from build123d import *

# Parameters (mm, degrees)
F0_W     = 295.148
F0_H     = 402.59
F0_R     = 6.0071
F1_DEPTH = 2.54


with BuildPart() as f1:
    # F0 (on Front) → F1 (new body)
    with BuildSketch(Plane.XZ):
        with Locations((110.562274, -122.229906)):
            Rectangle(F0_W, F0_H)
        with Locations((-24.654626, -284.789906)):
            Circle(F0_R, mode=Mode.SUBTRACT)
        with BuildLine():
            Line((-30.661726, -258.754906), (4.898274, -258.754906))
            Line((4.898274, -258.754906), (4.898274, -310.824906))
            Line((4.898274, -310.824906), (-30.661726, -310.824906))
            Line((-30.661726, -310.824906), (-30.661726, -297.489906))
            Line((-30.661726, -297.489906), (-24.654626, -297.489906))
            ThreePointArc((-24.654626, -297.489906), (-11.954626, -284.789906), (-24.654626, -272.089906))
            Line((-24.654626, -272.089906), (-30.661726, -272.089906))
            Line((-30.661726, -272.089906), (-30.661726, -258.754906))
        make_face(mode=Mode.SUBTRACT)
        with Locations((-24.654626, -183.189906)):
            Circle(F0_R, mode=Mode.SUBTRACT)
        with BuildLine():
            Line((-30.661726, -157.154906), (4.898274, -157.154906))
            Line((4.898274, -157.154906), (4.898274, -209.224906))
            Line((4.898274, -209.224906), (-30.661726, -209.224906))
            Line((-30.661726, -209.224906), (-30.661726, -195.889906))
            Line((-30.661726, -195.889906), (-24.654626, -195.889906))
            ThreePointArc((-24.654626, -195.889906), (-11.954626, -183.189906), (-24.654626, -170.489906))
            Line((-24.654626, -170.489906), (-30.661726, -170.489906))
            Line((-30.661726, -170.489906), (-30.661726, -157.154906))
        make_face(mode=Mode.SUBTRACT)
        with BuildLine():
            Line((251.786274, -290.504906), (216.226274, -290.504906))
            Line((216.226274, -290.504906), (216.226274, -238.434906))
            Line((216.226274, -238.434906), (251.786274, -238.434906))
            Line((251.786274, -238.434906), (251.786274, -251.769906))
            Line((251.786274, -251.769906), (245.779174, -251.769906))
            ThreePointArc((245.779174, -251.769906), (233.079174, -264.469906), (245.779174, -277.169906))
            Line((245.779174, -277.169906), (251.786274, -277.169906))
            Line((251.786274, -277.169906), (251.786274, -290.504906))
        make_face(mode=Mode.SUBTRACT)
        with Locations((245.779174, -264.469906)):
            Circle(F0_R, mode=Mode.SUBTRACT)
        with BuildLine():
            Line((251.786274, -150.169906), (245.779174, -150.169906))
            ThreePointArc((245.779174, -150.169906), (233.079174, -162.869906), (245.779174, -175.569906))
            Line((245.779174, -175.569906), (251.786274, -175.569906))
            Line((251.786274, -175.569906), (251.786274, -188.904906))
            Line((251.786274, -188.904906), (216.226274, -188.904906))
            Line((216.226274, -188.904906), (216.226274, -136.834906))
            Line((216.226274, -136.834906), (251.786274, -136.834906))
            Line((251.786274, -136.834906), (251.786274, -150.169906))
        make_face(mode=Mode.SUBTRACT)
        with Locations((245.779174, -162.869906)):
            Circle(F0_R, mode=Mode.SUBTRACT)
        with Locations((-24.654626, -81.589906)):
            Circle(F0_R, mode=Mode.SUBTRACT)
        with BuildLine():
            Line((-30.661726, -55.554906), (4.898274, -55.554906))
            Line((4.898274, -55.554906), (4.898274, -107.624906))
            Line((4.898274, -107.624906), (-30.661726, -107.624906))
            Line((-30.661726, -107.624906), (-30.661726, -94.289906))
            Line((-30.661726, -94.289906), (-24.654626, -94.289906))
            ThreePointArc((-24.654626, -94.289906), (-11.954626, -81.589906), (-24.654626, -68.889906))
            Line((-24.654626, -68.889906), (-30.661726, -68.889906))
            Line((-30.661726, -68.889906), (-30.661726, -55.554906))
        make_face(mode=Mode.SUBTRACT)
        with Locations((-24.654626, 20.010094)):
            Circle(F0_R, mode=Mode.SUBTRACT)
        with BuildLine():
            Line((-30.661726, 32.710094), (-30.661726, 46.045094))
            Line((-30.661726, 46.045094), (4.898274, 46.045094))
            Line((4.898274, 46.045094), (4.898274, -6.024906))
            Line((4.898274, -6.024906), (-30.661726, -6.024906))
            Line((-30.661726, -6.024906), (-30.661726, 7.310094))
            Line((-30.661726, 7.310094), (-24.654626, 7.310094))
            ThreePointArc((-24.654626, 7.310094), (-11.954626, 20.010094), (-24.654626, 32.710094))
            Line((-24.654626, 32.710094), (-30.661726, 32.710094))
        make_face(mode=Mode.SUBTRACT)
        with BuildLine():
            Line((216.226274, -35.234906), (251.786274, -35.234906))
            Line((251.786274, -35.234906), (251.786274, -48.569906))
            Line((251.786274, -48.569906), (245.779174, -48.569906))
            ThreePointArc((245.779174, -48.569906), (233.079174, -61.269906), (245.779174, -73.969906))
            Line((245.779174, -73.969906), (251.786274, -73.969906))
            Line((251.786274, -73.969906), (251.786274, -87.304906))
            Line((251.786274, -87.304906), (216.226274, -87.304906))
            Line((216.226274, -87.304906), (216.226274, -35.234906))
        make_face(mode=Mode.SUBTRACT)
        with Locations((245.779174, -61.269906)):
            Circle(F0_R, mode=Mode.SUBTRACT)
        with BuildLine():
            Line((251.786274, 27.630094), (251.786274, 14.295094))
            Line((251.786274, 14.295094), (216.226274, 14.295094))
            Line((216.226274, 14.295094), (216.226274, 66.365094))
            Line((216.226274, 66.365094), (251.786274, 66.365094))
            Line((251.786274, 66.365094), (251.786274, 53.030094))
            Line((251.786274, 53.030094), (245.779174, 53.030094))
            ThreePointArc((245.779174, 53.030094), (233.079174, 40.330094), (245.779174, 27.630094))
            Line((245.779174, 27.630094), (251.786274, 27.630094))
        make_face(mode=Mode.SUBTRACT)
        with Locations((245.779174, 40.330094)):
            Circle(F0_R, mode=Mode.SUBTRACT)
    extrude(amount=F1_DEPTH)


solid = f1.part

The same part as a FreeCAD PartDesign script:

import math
import FreeCAD as App
import Part
import Sketcher
Q = App.Units.Quantity


def add_polygon(sketch, points):
    """Adds a closed chain of lines whose ends are joined by coincident constraints."""
    first, n = sketch.GeometryCount, len(points)
    for a, b in zip(points, points[1:] + points[:1]):
        sketch.addGeometry(Part.LineSegment(App.Vector(*a, 0), App.Vector(*b, 0)), False)
    for i in range(n):
        sketch.addConstraint(Sketcher.Constraint("Coincident", first + i, 2, first + (i + 1) % n, 1))

doc = App.newDocument("Part")
body = doc.addObject("PartDesign::Body", "Body")

sketch1 = doc.addObject("Sketcher::SketchObject", "Sketch")
body.addObject(sketch1)
sketch1.AttachmentSupport = (doc.XZ_Plane, [""])
sketch1.MapMode = "FlatFace"
add_polygon(sketch1, [(-37, 79), (-37, -324), (258, -324), (258, 79)])
sketch1.addGeometry(Part.Circle(App.Vector(-25, -285, 0), App.Vector(0, 0, 1), 6), False)
sketch1.addGeometry(Part.LineSegment(App.Vector(-31, -272, 0), App.Vector(-31, -259, 0)), False)
sketch1.addGeometry(Part.LineSegment(App.Vector(-31, -259, 0), App.Vector(5, -259, 0)), False)
sketch1.addGeometry(Part.LineSegment(App.Vector(5, -259, 0), App.Vector(5, -311, 0)), False)
sketch1.addGeometry(Part.LineSegment(App.Vector(5, -311, 0), App.Vector(-31, -311, 0)), False)
sketch1.addGeometry(Part.LineSegment(App.Vector(-31, -311, 0), App.Vector(-31, -297, 0)), False)
sketch1.addGeometry(Part.LineSegment(App.Vector(-31, -297, 0), App.Vector(-25, -297, 0)), False)
sketch1.addGeometry(Part.ArcOfCircle(Part.Circle(App.Vector(-25, -285, 0), App.Vector(0, 0, 1), 13), math.radians(-90), math.radians(90)), False)
sketch1.addGeometry(Part.LineSegment(App.Vector(-25, -272, 0), App.Vector(-31, -272, 0)), False)
sketch1.addGeometry(Part.Circle(App.Vector(-25, -183, 0), App.Vector(0, 0, 1), 6), False)
sketch1.addGeometry(Part.LineSegment(App.Vector(-31, -170, 0), App.Vector(-31, -157, 0)), False)
sketch1.addGeometry(Part.LineSegment(App.Vector(-31, -157, 0), App.Vector(5, -157, 0)), False)
sketch1.addGeometry(Part.LineSegment(App.Vector(5, -157, 0), App.Vector(5, -209, 0)), False)
sketch1.addGeometry(Part.LineSegment(App.Vector(5, -209, 0), App.Vector(-31, -209, 0)), False)
sketch1.addGeometry(Part.LineSegment(App.Vector(-31, -209, 0), App.Vector(-31, -196, 0)), False)
sketch1.addGeometry(Part.LineSegment(App.Vector(-31, -196, 0), App.Vector(-25, -196, 0)), False)
sketch1.addGeometry(Part.ArcOfCircle(Part.Circle(App.Vector(-25, -183, 0), App.Vector(0, 0, 1), 13), math.radians(-90), math.radians(90)), False)
sketch1.addGeometry(Part.LineSegment(App.Vector(-25, -170, 0), App.Vector(-31, -170, 0)), False)
sketch1.addGeometry(Part.LineSegment(App.Vector(252, -277, 0), App.Vector(252, -291, 0)), False)
sketch1.addGeometry(Part.LineSegment(App.Vector(252, -291, 0), App.Vector(216, -291, 0)), False)
sketch1.addGeometry(Part.LineSegment(App.Vector(216, -291, 0), App.Vector(216, -238, 0)), False)
sketch1.addGeometry(Part.LineSegment(App.Vector(216, -238, 0), App.Vector(252, -238, 0)), False)
sketch1.addGeometry(Part.LineSegment(App.Vector(252, -238, 0), App.Vector(252, -252, 0)), False)
sketch1.addGeometry(Part.LineSegment(App.Vector(252, -252, 0), App.Vector(246, -252, 0)), False)
sketch1.addGeometry(Part.ArcOfCircle(Part.Circle(App.Vector(246, -264, 0), App.Vector(0, 0, 1), 13), math.radians(90), math.radians(270)), False)
sketch1.addGeometry(Part.LineSegment(App.Vector(246, -277, 0), App.Vector(252, -277, 0)), False)
sketch1.addGeometry(Part.Circle(App.Vector(246, -264, 0), App.Vector(0, 0, 1), 6), False)
sketch1.addGeometry(Part.LineSegment(App.Vector(252, -137, 0), App.Vector(252, -150, 0)), False)
sketch1.addGeometry(Part.LineSegment(App.Vector(252, -150, 0), App.Vector(246, -150, 0)), False)
sketch1.addGeometry(Part.ArcOfCircle(Part.Circle(App.Vector(246, -163, 0), App.Vector(0, 0, 1), 13), math.radians(90), math.radians(270)), False)
sketch1.addGeometry(Part.LineSegment(App.Vector(246, -176, 0), App.Vector(252, -176, 0)), False)
sketch1.addGeometry(Part.LineSegment(App.Vector(252, -176, 0), App.Vector(252, -189, 0)), False)
sketch1.addGeometry(Part.LineSegment(App.Vector(252, -189, 0), App.Vector(216, -189, 0)), False)
sketch1.addGeometry(Part.LineSegment(App.Vector(216, -189, 0), App.Vector(216, -137, 0)), False)
sketch1.addGeometry(Part.LineSegment(App.Vector(216, -137, 0), App.Vector(252, -137, 0)), False)
sketch1.addGeometry(Part.Circle(App.Vector(246, -163, 0), App.Vector(0, 0, 1), 6), False)
sketch1.addGeometry(Part.Circle(App.Vector(-25, -82, 0), App.Vector(0, 0, 1), 6), False)
sketch1.addGeometry(Part.LineSegment(App.Vector(-31, -69, 0), App.Vector(-31, -56, 0)), False)
sketch1.addGeometry(Part.LineSegment(App.Vector(-31, -56, 0), App.Vector(5, -56, 0)), False)
sketch1.addGeometry(Part.LineSegment(App.Vector(5, -56, 0), App.Vector(5, -108, 0)), False)
sketch1.addGeometry(Part.LineSegment(App.Vector(5, -108, 0), App.Vector(-31, -108, 0)), False)
sketch1.addGeometry(Part.LineSegment(App.Vector(-31, -108, 0), App.Vector(-31, -94, 0)), False)
sketch1.addGeometry(Part.LineSegment(App.Vector(-31, -94, 0), App.Vector(-25, -94, 0)), False)
sketch1.addGeometry(Part.ArcOfCircle(Part.Circle(App.Vector(-25, -82, 0), App.Vector(0, 0, 1), 13), math.radians(-90), math.radians(90)), False)
sketch1.addGeometry(Part.LineSegment(App.Vector(-25, -69, 0), App.Vector(-31, -69, 0)), False)
sketch1.addGeometry(Part.Circle(App.Vector(-25, 20, 0), App.Vector(0, 0, 1), 6), False)
sketch1.addGeometry(Part.LineSegment(App.Vector(-25, 33, 0), App.Vector(-31, 33, 0)), False)
sketch1.addGeometry(Part.LineSegment(App.Vector(-31, 33, 0), App.Vector(-31, 46, 0)), False)
sketch1.addGeometry(Part.LineSegment(App.Vector(-31, 46, 0), App.Vector(5, 46, 0)), False)
sketch1.addGeometry(Part.LineSegment(App.Vector(5, 46, 0), App.Vector(5, -6, 0)), False)
sketch1.addGeometry(Part.LineSegment(App.Vector(5, -6, 0), App.Vector(-31, -6, 0)), False)
sketch1.addGeometry(Part.LineSegment(App.Vector(-31, -6, 0), App.Vector(-31, 7, 0)), False)
sketch1.addGeometry(Part.LineSegment(App.Vector(-31, 7, 0), App.Vector(-25, 7, 0)), False)
sketch1.addGeometry(Part.ArcOfCircle(Part.Circle(App.Vector(-25, 20, 0), App.Vector(0, 0, 1), 13), math.radians(-90), math.radians(90)), False)
sketch1.addGeometry(Part.LineSegment(App.Vector(216, -87, 0), App.Vector(216, -35, 0)), False)
sketch1.addGeometry(Part.LineSegment(App.Vector(216, -35, 0), App.Vector(252, -35, 0)), False)
sketch1.addGeometry(Part.LineSegment(App.Vector(252, -35, 0), App.Vector(252, -49, 0)), False)
sketch1.addGeometry(Part.LineSegment(App.Vector(252, -49, 0), App.Vector(246, -49, 0)), False)
sketch1.addGeometry(Part.ArcOfCircle(Part.Circle(App.Vector(246, -61, 0), App.Vector(0, 0, 1), 13), math.radians(90), math.radians(270)), False)
sketch1.addGeometry(Part.LineSegment(App.Vector(246, -74, 0), App.Vector(252, -74, 0)), False)
sketch1.addGeometry(Part.LineSegment(App.Vector(252, -74, 0), App.Vector(252, -87, 0)), False)
sketch1.addGeometry(Part.LineSegment(App.Vector(252, -87, 0), App.Vector(216, -87, 0)), False)
sketch1.addGeometry(Part.Circle(App.Vector(246, -61, 0), App.Vector(0, 0, 1), 6), False)
sketch1.addGeometry(Part.LineSegment(App.Vector(246, 28, 0), App.Vector(252, 28, 0)), False)
sketch1.addGeometry(Part.LineSegment(App.Vector(252, 28, 0), App.Vector(252, 14, 0)), False)
sketch1.addGeometry(Part.LineSegment(App.Vector(252, 14, 0), App.Vector(216, 14, 0)), False)
sketch1.addGeometry(Part.LineSegment(App.Vector(216, 14, 0), App.Vector(216, 66, 0)), False)
sketch1.addGeometry(Part.LineSegment(App.Vector(216, 66, 0), App.Vector(252, 66, 0)), False)
sketch1.addGeometry(Part.LineSegment(App.Vector(252, 66, 0), App.Vector(252, 53, 0)), False)
sketch1.addGeometry(Part.LineSegment(App.Vector(252, 53, 0), App.Vector(246, 53, 0)), False)
sketch1.addGeometry(Part.ArcOfCircle(Part.Circle(App.Vector(246, 40, 0), App.Vector(0, 0, 1), 13), math.radians(90), math.radians(270)), False)
sketch1.addGeometry(Part.Circle(App.Vector(246, 40, 0), App.Vector(0, 0, 1), 6), False)
sketch1.addConstraint([
    Sketcher.Constraint("Coincident", 5, 2, 6, 1),
    Sketcher.Constraint("Coincident", 6, 2, 7, 1),
    Sketcher.Constraint("Coincident", 7, 2, 8, 1),
    Sketcher.Constraint("Coincident", 8, 2, 9, 1),
    Sketcher.Constraint("Coincident", 9, 2, 10, 1),
    Sketcher.Constraint("Tangent", 10, 2, 11, 1),
    Sketcher.Constraint("Tangent", 11, 2, 12, 1),
    Sketcher.Constraint("Coincident", 12, 2, 5, 1),
    Sketcher.Constraint("Coincident", 14, 2, 15, 1),
    Sketcher.Constraint("Coincident", 15, 2, 16, 1),
    Sketcher.Constraint("Coincident", 16, 2, 17, 1),
    Sketcher.Constraint("Coincident", 17, 2, 18, 1),
    Sketcher.Constraint("Coincident", 18, 2, 19, 1),
    Sketcher.Constraint("Tangent", 19, 2, 20, 1),
    Sketcher.Constraint("Tangent", 20, 2, 21, 1),
    Sketcher.Constraint("Coincident", 21, 2, 14, 1),
    Sketcher.Constraint("Coincident", 22, 2, 23, 1),
    Sketcher.Constraint("Coincident", 23, 2, 24, 1),
    Sketcher.Constraint("Coincident", 24, 2, 25, 1),
    Sketcher.Constraint("Coincident", 25, 2, 26, 1),
    Sketcher.Constraint("Coincident", 26, 2, 27, 1),
    Sketcher.Constraint("Tangent", 27, 2, 28, 1),
    Sketcher.Constraint("Tangent", 28, 2, 29, 1),
    Sketcher.Constraint("Coincident", 29, 2, 22, 1),
    Sketcher.Constraint("Coincident", 31, 2, 32, 1),
    Sketcher.Constraint("Tangent", 32, 2, 33, 1),
    Sketcher.Constraint("Tangent", 33, 2, 34, 1),
    Sketcher.Constraint("Coincident", 34, 2, 35, 1),
    Sketcher.Constraint("Coincident", 35, 2, 36, 1),
    Sketcher.Constraint("Coincident", 36, 2, 37, 1),
    Sketcher.Constraint("Coincident", 37, 2, 38, 1),
    Sketcher.Constraint("Coincident", 38, 2, 31, 1),
    Sketcher.Constraint("Coincident", 41, 2, 42, 1),
    Sketcher.Constraint("Coincident", 42, 2, 43, 1),
    Sketcher.Constraint("Coincident", 43, 2, 44, 1),
    Sketcher.Constraint("Coincident", 44, 2, 45, 1),
    Sketcher.Constraint("Coincident", 45, 2, 46, 1),
    Sketcher.Constraint("Tangent", 46, 2, 47, 1),
    Sketcher.Constraint("Tangent", 47, 2, 48, 1),
    Sketcher.Constraint("Coincident", 48, 2, 41, 1),
    Sketcher.Constraint("Coincident", 50, 2, 51, 1),
    Sketcher.Constraint("Coincident", 51, 2, 52, 1),
    Sketcher.Constraint("Coincident", 52, 2, 53, 1),
    Sketcher.Constraint("Coincident", 53, 2, 54, 1),
    Sketcher.Constraint("Coincident", 54, 2, 55, 1),
    Sketcher.Constraint("Coincident", 55, 2, 56, 1),
    Sketcher.Constraint("Tangent", 56, 2, 57, 1),
    Sketcher.Constraint("Tangent", 57, 2, 50, 1),
    Sketcher.Constraint("Coincident", 58, 2, 59, 1),
    Sketcher.Constraint("Coincident", 59, 2, 60, 1),
    Sketcher.Constraint("Coincident", 60, 2, 61, 1),
    Sketcher.Constraint("Tangent", 61, 2, 62, 1),
    Sketcher.Constraint("Tangent", 62, 2, 63, 1),
    Sketcher.Constraint("Coincident", 63, 2, 64, 1),
    Sketcher.Constraint("Coincident", 64, 2, 65, 1),
    Sketcher.Constraint("Coincident", 65, 2, 58, 1),
    Sketcher.Constraint("Coincident", 67, 2, 68, 1),
    Sketcher.Constraint("Coincident", 68, 2, 69, 1),
    Sketcher.Constraint("Coincident", 69, 2, 70, 1),
    Sketcher.Constraint("Coincident", 70, 2, 71, 1),
    Sketcher.Constraint("Coincident", 71, 2, 72, 1),
    Sketcher.Constraint("Coincident", 72, 2, 73, 1),
    Sketcher.Constraint("Tangent", 73, 2, 74, 1),
    Sketcher.Constraint("Tangent", 74, 2, 67, 1),
    Sketcher.Constraint("Vertical", 0),
    Sketcher.Constraint("Horizontal", 1),
    Sketcher.Constraint("Vertical", 2),
    Sketcher.Constraint("Horizontal", 3),
    Sketcher.Constraint("Vertical", 5),
    Sketcher.Constraint("Horizontal", 6),
    Sketcher.Constraint("Vertical", 7),
    Sketcher.Constraint("Horizontal", 8),
    Sketcher.Constraint("Vertical", 9),
    Sketcher.Constraint("Horizontal", 10),
    Sketcher.Constraint("Horizontal", 12),
    Sketcher.Constraint("Vertical", 14),
    Sketcher.Constraint("Horizontal", 15),
    Sketcher.Constraint("Vertical", 16),
    Sketcher.Constraint("Horizontal", 17),
    Sketcher.Constraint("Vertical", 18),
    Sketcher.Constraint("Horizontal", 19),
    Sketcher.Constraint("Horizontal", 21),
    Sketcher.Constraint("Vertical", 22),
    Sketcher.Constraint("Horizontal", 23),
    Sketcher.Constraint("Vertical", 24),
    Sketcher.Constraint("Horizontal", 25),
    Sketcher.Constraint("Vertical", 26),
    Sketcher.Constraint("Horizontal", 27),
    Sketcher.Constraint("Horizontal", 29),
    Sketcher.Constraint("Vertical", 31),
    Sketcher.Constraint("Horizontal", 32),
    Sketcher.Constraint("Horizontal", 34),
    Sketcher.Constraint("Vertical", 35),
    Sketcher.Constraint("Horizontal", 36),
    Sketcher.Constraint("Vertical", 37),
    Sketcher.Constraint("Horizontal", 38),
    Sketcher.Constraint("Vertical", 41),
    Sketcher.Constraint("Horizontal", 42),
    Sketcher.Constraint("Vertical", 43),
    Sketcher.Constraint("Horizontal", 44),
    Sketcher.Constraint("Vertical", 45),
    Sketcher.Constraint("Horizontal", 46),
    Sketcher.Constraint("Horizontal", 48),
    Sketcher.Constraint("Horizontal", 50),
    Sketcher.Constraint("Vertical", 51),
    Sketcher.Constraint("Horizontal", 52),
    Sketcher.Constraint("Vertical", 53),
    Sketcher.Constraint("Horizontal", 54),
    Sketcher.Constraint("Vertical", 55),
    Sketcher.Constraint("Horizontal", 56),
    Sketcher.Constraint("Vertical", 58),
    Sketcher.Constraint("Horizontal", 59),
    Sketcher.Constraint("Vertical", 60),
    Sketcher.Constraint("Horizontal", 61),
    Sketcher.Constraint("Horizontal", 63),
    Sketcher.Constraint("Vertical", 64),
    Sketcher.Constraint("Horizontal", 65),
    Sketcher.Constraint("Horizontal", 67),
    Sketcher.Constraint("Vertical", 68),
    Sketcher.Constraint("Horizontal", 69),
    Sketcher.Constraint("Vertical", 70),
    Sketcher.Constraint("Horizontal", 71),
    Sketcher.Constraint("Vertical", 72),
    Sketcher.Constraint("Horizontal", 73),
    Sketcher.Constraint("Coincident", 11, 3, 4, 3),
    Sketcher.Constraint("Coincident", 20, 3, 13, 3),
    Sketcher.Constraint("Coincident", 30, 3, 28, 3),
    Sketcher.Constraint("Coincident", 39, 3, 33, 3),
    Sketcher.Constraint("Coincident", 47, 3, 40, 3),
    Sketcher.Constraint("Coincident", 57, 3, 49, 3),
    Sketcher.Constraint("Coincident", 66, 3, 62, 3),
    Sketcher.Constraint("Coincident", 75, 3, 74, 3),
    Sketcher.Constraint("Equal", 4, 13),
    Sketcher.Constraint("Equal", 11, 20),
    Sketcher.Constraint("Equal", 20, 28),
    Sketcher.Constraint("Equal", 13, 30),
    Sketcher.Constraint("Equal", 28, 33),
    Sketcher.Constraint("Equal", 30, 39),
    Sketcher.Constraint("Equal", 39, 40),
    Sketcher.Constraint("Equal", 33, 47),
    Sketcher.Constraint("Equal", 40, 49),
    Sketcher.Constraint("Equal", 47, 57),
    Sketcher.Constraint("Equal", 57, 62),
    Sketcher.Constraint("Equal", 49, 66),
    Sketcher.Constraint("Equal", 62, 74),
    Sketcher.Constraint("Equal", 66, 75),
    Sketcher.Constraint("Vertical", 11, 3, 13, 3),
    Sketcher.Constraint("Vertical", 30, 3, 33, 3),
    Sketcher.Constraint("Vertical", 20, 3, 40, 3),
    Sketcher.Constraint("Vertical", 47, 3, 49, 3),
    Sketcher.Constraint("Vertical", 39, 3, 62, 3),
    Sketcher.Constraint("Vertical", 66, 3, 74, 3),
    Sketcher.Constraint("Vertical", 5, 2, 8, 2),
    Sketcher.Constraint("Vertical", 12, 2, 14, 2),
    Sketcher.Constraint("Vertical", 7, 2, 15, 2),
    Sketcher.Constraint("Vertical", 14, 2, 17, 2),
    Sketcher.Constraint("Vertical", 22, 2, 25, 2),
    Sketcher.Constraint("Vertical", 29, 2, 31, 2),
    Sketcher.Constraint("Vertical", 31, 2, 34, 2),
    Sketcher.Constraint("Vertical", 24, 2, 36, 2),
    Sketcher.Constraint("Vertical", 21, 2, 41, 2),
    Sketcher.Constraint("Vertical", 16, 2, 42, 2),
    Sketcher.Constraint("Vertical", 41, 2, 44, 2),
    Sketcher.Constraint("Vertical", 48, 2, 50, 2),
    Sketcher.Constraint("Vertical", 43, 2, 52, 2),
    Sketcher.Constraint("Vertical", 51, 2, 54, 2),
    Sketcher.Constraint("Vertical", 37, 2, 58, 2),
    Sketcher.Constraint("Vertical", 38, 2, 59, 2),
    Sketcher.Constraint("Vertical", 60, 2, 63, 2),
    Sketcher.Constraint("Vertical", 64, 2, 67, 2),
    Sketcher.Constraint("Vertical", 65, 2, 69, 2),
    Sketcher.Constraint("Vertical", 68, 2, 71, 2),
    Sketcher.Constraint("Equal", 17, 23),
    Sketcher.Constraint("Equal", 21, 27),
    Sketcher.Constraint("Equal", 5, 9),
    Sketcher.Constraint("Equal", 9, 14),
    Sketcher.Constraint("Equal", 7, 16),
    Sketcher.Constraint("Equal", 18, 22),
    Sketcher.Constraint("Equal", 16, 24),
    Sketcher.Constraint("Equal", 26, 31),
    Sketcher.Constraint("Equal", 31, 35),
    Sketcher.Constraint("Equal", 35, 41),
    Sketcher.Constraint("Equal", 37, 43),
    Sketcher.Constraint("Equal", 45, 51),
    Sketcher.Constraint("Equal", 43, 53),
    Sketcher.Constraint("Equal", 53, 58),
    Sketcher.Constraint("Equal", 55, 60),
    Sketcher.Constraint("Equal", 64, 68),
    Sketcher.Constraint("Equal", 58, 70),
    Sketcher.Constraint("Radius", 11, Q("0.5 in")),
    Sketcher.Constraint("Diameter", 4, Q("0.473 in")),
    Sketcher.Constraint("DistanceX", 6, 1, 6, 2, Q("1.4 in")),
    Sketcher.Constraint("DistanceX", 1, 1, 1, 2, Q("11.62 in")),
    Sketcher.Constraint("DistanceY", 0, 2, 0, 1, Q("15.85 in")),
    Sketcher.Constraint("DistanceY", 7, 2, 7, 1, Q("2.05 in")),
    Sketcher.Constraint("DistanceX", 10, 1, 10, 2, Q("0.2365 in")),
    Sketcher.Constraint("DistanceX", 4, 3, -1, 1, Q("24.654626 mm")),
    Sketcher.Constraint("DistanceY", 4, 3, -1, 1, Q("284.789906 mm")),
    Sketcher.Constraint("DistanceY", 13, 3, -1, 1, Q("183.189906 mm")),
    Sketcher.Constraint("DistanceX", -1, 1, 28, 3, Q("245.779174 mm")),
    Sketcher.Constraint("DistanceY", 28, 3, -1, 1, Q("264.469906 mm")),
    Sketcher.Constraint("DistanceY", 33, 3, -1, 1, Q("162.869906 mm")),
    Sketcher.Constraint("DistanceY", 40, 3, -1, 1, Q("81.589906 mm")),
    Sketcher.Constraint("DistanceY", -1, 1, 49, 3, Q("20.010094 mm")),
    Sketcher.Constraint("DistanceY", 62, 3, -1, 1, Q("61.269906 mm")),
    Sketcher.Constraint("DistanceY", -1, 1, 74, 3, Q("40.330094 mm")),
    Sketcher.Constraint("DistanceX", 0, 2, -1, 1, Q("37.011726 mm")),
    Sketcher.Constraint("DistanceY", 0, 2, -1, 1, Q("323.524906 mm")),
])
pad1 = doc.addObject("PartDesign::Pad", "Pad")
body.addObject(pad1)
pad1.Profile = sketch1
pad1.Length = Q("0.1 in")

doc.recompute()
